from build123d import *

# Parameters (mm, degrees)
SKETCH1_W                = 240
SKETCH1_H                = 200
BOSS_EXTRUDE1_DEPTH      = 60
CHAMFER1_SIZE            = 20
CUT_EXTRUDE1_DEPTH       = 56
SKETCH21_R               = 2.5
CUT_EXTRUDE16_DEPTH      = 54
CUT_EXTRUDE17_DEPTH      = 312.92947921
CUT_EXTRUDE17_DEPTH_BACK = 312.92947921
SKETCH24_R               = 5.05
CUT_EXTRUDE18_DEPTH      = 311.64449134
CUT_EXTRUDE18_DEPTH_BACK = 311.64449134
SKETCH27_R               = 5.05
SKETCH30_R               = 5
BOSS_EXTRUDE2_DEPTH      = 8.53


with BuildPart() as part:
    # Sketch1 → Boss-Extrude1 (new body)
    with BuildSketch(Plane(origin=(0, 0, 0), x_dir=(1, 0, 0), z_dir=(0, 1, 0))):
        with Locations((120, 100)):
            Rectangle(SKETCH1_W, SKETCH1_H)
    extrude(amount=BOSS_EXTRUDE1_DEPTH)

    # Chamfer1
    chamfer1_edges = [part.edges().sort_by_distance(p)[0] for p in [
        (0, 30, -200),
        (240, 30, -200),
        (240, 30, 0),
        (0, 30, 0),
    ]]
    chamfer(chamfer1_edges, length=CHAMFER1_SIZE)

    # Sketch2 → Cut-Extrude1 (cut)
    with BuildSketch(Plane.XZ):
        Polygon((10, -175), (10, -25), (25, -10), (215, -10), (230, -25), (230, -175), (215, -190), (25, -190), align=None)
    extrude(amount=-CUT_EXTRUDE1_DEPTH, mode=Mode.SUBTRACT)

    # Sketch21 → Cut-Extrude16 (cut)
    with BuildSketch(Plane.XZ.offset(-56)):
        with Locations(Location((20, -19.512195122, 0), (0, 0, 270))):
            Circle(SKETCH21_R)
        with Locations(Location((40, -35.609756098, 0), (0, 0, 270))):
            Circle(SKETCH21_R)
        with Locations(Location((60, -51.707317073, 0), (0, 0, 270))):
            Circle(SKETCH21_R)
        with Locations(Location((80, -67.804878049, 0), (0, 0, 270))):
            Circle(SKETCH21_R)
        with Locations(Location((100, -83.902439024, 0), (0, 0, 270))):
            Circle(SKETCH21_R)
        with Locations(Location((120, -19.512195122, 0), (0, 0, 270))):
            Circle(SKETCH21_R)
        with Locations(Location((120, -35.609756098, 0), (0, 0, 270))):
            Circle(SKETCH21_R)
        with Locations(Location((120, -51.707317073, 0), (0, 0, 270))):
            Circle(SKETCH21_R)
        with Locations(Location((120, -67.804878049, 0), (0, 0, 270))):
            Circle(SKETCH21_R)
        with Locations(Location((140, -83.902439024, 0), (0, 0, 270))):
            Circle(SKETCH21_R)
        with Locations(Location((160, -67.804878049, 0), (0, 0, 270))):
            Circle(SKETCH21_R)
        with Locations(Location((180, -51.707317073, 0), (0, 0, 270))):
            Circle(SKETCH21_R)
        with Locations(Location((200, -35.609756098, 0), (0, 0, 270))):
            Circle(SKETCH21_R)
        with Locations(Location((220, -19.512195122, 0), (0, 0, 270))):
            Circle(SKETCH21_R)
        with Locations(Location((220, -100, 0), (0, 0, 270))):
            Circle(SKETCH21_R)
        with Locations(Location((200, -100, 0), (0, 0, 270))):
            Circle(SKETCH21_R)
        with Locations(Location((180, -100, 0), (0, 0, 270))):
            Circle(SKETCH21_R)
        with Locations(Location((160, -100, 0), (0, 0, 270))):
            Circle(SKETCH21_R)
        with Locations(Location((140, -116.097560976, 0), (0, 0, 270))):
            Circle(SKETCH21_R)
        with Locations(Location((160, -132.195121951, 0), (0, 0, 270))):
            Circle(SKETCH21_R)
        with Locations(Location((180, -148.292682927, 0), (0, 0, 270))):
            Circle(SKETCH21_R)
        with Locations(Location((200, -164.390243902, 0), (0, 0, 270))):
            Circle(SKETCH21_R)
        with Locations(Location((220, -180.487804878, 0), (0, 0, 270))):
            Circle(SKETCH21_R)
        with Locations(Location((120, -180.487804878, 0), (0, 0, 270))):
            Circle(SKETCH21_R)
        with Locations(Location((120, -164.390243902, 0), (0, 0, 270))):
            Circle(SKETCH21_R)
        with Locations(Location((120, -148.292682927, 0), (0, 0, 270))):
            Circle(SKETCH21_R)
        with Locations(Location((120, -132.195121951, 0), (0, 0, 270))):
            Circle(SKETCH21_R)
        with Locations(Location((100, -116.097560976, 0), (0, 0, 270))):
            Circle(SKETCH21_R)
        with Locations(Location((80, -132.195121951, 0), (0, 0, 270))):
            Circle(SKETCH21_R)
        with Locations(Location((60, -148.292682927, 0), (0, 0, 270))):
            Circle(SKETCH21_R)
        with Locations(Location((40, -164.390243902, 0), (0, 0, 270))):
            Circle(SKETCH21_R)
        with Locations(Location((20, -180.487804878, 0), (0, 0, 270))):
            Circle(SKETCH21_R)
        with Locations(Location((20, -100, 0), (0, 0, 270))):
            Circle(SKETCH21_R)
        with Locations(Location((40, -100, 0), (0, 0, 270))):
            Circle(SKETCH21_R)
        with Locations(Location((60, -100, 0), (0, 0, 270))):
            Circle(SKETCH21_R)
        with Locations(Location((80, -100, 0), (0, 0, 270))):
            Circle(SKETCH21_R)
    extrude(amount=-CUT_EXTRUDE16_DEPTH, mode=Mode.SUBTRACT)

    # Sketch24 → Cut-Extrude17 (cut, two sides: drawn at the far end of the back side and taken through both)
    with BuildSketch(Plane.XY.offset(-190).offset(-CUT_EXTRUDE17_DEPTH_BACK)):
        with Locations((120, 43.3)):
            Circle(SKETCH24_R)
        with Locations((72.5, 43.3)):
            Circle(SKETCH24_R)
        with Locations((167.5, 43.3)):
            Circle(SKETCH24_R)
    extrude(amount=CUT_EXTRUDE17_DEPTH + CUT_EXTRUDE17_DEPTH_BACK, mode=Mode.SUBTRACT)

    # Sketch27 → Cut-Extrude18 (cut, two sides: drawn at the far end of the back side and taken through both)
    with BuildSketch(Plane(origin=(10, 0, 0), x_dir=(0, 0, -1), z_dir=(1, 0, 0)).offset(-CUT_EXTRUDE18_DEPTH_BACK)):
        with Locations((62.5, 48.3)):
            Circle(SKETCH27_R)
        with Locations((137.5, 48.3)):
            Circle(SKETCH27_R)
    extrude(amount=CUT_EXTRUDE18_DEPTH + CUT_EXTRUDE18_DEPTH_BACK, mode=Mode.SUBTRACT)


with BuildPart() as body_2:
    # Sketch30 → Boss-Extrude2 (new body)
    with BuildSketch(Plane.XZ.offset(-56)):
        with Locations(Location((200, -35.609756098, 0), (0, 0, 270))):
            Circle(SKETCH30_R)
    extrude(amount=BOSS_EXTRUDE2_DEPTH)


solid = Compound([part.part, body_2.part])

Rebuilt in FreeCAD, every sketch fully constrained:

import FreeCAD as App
import Part
import Sketcher

V = App.Vector
Q = App.Units.Quantity


def edges_at(feature, points):
    """Names of the edges that pass closest to the given points."""
    edges = feature.Shape.Edges
    near = lambda p: min(range(len(edges)), key=lambda i: edges[i].distToShape(Part.Vertex(*p))[0])
    return sorted({f"Edge{near(p) + 1}" for p in points})

doc = App.newDocument("Part")
body = doc.addObject("PartDesign::Body", "Body")

sketch1 = doc.addObject("Sketcher::SketchObject", "Sketch")
body.addObject(sketch1)
sketch1.AttachmentSupport = (doc.XZ_Plane, [""])
sketch1.MapMode = "FlatFace"
sketch1.addGeometry([
    Part.LineSegment(V(0, -200, 0), V(0, 0, 0)),
    Part.LineSegment(V(0, 0, 0), V(240, 0, 0)),
    Part.LineSegment(V(240, 0, 0), V(240, -200, 0)),
    Part.LineSegment(V(240, -200, 0), V(0, -200, 0)),
], False)
sketch1.addConstraint([
    Sketcher.Constraint("Coincident", 0, 2, 1, 1),
    Sketcher.Constraint("Coincident", 1, 2, 2, 1),
    Sketcher.Constraint("Coincident", 2, 2, 3, 1),
    Sketcher.Constraint("Coincident", 3, 2, 0, 1),
    Sketcher.Constraint("Vertical", 0),
    Sketcher.Constraint("Horizontal", 1),
    Sketcher.Constraint("Vertical", 2),
    Sketcher.Constraint("Horizontal", 3),
    Sketcher.Constraint("Coincident", 0, 2, -1, 1),
    Sketcher.Constraint("DistanceX", 1, 1, 1, 2, Q("240 mm")),
    Sketcher.Constraint("DistanceY", 0, 1, 0, 2, Q("200 mm")),
])
pad1 = doc.addObject("PartDesign::Pad", "Pad")
body.addObject(pad1)
pad1.Profile = sketch1
pad1.Length = 60
pad1.Reversed = True
doc.recompute()

chamfer = doc.addObject("PartDesign::Chamfer", "Chamfer")
body.addObject(chamfer)
chamfer.Base = (pad1, edges_at(pad1, [
    (0, 30, -200),
    (240, 30, -200),
    (240, 30, 0),
    (0, 30, 0),
]))
chamfer.Size = 20

sketch2 = doc.addObject("Sketcher::SketchObject", "Sketch001")
body.addObject(sketch2)
sketch2.AttachmentSupport = (doc.XZ_Plane, [""])
sketch2.MapMode = "FlatFace"
sketch2.addGeometry([
    Part.LineSegment(V(10, -25, 0), V(10, -175, 0)),
    Part.LineSegment(V(10, -175, 0), V(25, -190, 0)),
    Part.LineSegment(V(25, -190, 0), V(215, -190, 0)),
    Part.LineSegment(V(215, -190, 0), V(230, -175, 0)),
    Part.LineSegment(V(230, -175, 0), V(230, -25, 0)),
    Part.LineSegment(V(230, -25, 0), V(215, -10, 0)),
    Part.LineSegment(V(215, -10, 0), V(25, -10, 0)),
    Part.LineSegment(V(25, -10, 0), V(10, -25, 0)),
], False)
sketch2.addConstraint([
    Sketcher.Constraint("Coincident", 0, 2, 1, 1),
    Sketcher.Constraint("Coincident", 1, 2, 2, 1),
    Sketcher.Constraint("Coincident", 2, 2, 3, 1),
    Sketcher.Constraint("Coincident", 3, 2, 4, 1),
    Sketcher.Constraint("Coincident", 4, 2, 5, 1),
    Sketcher.Constraint("Coincident", 5, 2, 6, 1),
    Sketcher.Constraint("Coincident", 6, 2, 7, 1),
    Sketcher.Constraint("Coincident", 7, 2, 0, 1),
    Sketcher.Constraint("Vertical", 0),
    Sketcher.Constraint("Horizontal", 2),
    Sketcher.Constraint("Vertical", 4),
    Sketcher.Constraint("Horizontal", 6),
    Sketcher.Constraint("Perpendicular", 1, 3),
    Sketcher.Constraint("Perpendicular", 3, 5),
    Sketcher.Constraint("Perpendicular", 5, 7),
    Sketcher.Constraint("Horizontal", 0, 2, 3, 2),
    Sketcher.Constraint("Horizontal", 4, 2, 7, 2),
    Sketcher.Constraint("Vertical", 2, 2, 5, 2),
    Sketcher.Constraint("Vertical", 1, 2, 6, 2),
    Sketcher.Constraint("DistanceX", 2, 1, 2, 2, Q("190 mm")),
    Sketcher.Constraint("DistanceY", 0, 2, 0, 1, Q("150 mm")),
    Sketcher.Constraint("DistanceX", -1, 1, 0, 2, Q("10 mm")),
    Sketcher.Constraint("DistanceY", 0, 2, -1, 1, Q("175 mm")),
    Sketcher.Constraint("DistanceX", -1, 1, 1, 2, Q("25 mm")),
])
pocket1 = doc.addObject("PartDesign::Pocket", "Pocket")
body.addObject(pocket1)
pocket1.Profile = sketch2
pocket1.Length = 56

sketch3 = doc.addObject("Sketcher::SketchObject", "Sketch002")
body.addObject(sketch3)
sketch3.AttachmentSupport = (doc.XZ_Plane, [""])
sketch3.MapMode = "FlatFace"
sketch3.AttachmentOffset = App.Placement(V(0, 0, -56), App.Rotation())
sketch3.addGeometry([
    Part.Circle(V(20, -19.5, 0), V(0, 0, 1), 2.5),
    Part.Circle(V(40, -35.6, 0), V(0, 0, 1), 2.5),
    Part.Circle(V(60, -51.7, 0), V(0, 0, 1), 2.5),
    Part.Circle(V(80, -67.8, 0), V(0, 0, 1), 2.5),
    Part.Circle(V(100, -83.9, 0), V(0, 0, 1), 2.5),
    Part.Circle(V(120, -19.5, 0), V(0, 0, 1), 2.5),
    Part.Circle(V(120, -35.6, 0), V(0, 0, 1), 2.5),
    Part.Circle(V(120, -51.7, 0), V(0, 0, 1), 2.5),
    Part.Circle(V(120, -67.8, 0), V(0, 0, 1), 2.5),
    Part.Circle(V(140, -83.9, 0), V(0, 0, 1), 2.5),
    Part.Circle(V(160, -67.8, 0), V(0, 0, 1), 2.5),
    Part.Circle(V(180, -51.7, 0), V(0, 0, 1), 2.5),
    Part.Circle(V(200, -35.6, 0), V(0, 0, 1), 2.5),
    Part.Circle(V(220, -19.5, 0), V(0, 0, 1), 2.5),
    Part.Circle(V(220, -100, 0), V(0, 0, 1), 2.5),
    Part.Circle(V(200, -100, 0), V(0, 0, 1), 2.5),
    Part.Circle(V(180, -100, 0), V(0, 0, 1), 2.5),
    Part.Circle(V(160, -100, 0), V(0, 0, 1), 2.5),
    Part.Circle(V(140, -116.1, 0), V(0, 0, 1), 2.5),
    Part.Circle(V(160, -132.2, 0), V(0, 0, 1), 2.5),
    Part.Circle(V(180, -148.3, 0), V(0, 0, 1), 2.5),
    Part.Circle(V(200, -164.4, 0), V(0, 0, 1), 2.5),
    Part.Circle(V(220, -180.5, 0), V(0, 0, 1), 2.5),
    Part.Circle(V(120, -180.5, 0), V(0, 0, 1), 2.5),
    Part.Circle(V(120, -164.4, 0), V(0, 0, 1), 2.5),
    Part.Circle(V(120, -148.3, 0), V(0, 0, 1), 2.5),
    Part.Circle(V(120, -132.2, 0), V(0, 0, 1), 2.5),
    Part.Circle(V(100, -116.1, 0), V(0, 0, 1), 2.5),
    Part.Circle(V(80, -132.2, 0), V(0, 0, 1), 2.5),
    Part.Circle(V(60, -148.3, 0), V(0, 0, 1), 2.5),
    Part.Circle(V(40, -164.4, 0), V(0, 0, 1), 2.5),
    Part.Circle(V(20, -180.5, 0), V(0, 0, 1), 2.5),
    Part.Circle(V(20, -100, 0), V(0, 0, 1), 2.5),
    Part.Circle(V(40, -100, 0), V(0, 0, 1), 2.5),
    Part.Circle(V(60, -100, 0), V(0, 0, 1), 2.5),
    Part.Circle(V(80, -100, 0), V(0, 0, 1), 2.5),
], False)
sketch3.addConstraint([
    Sketcher.Constraint("Equal", 0, 1),
    Sketcher.Constraint("Equal", 1, 2),
    Sketcher.Constraint("Equal", 2, 3),
    Sketcher.Constraint("Equal", 3, 4),
    Sketcher.Constraint("Equal", 4, 5),
    Sketcher.Constraint("Equal", 5, 6),
    Sketcher.Constraint("Equal", 6, 7),
    Sketcher.Constraint("Equal", 7, 8),
    Sketcher.Constraint("Equal", 8, 9),
    Sketcher.Constraint("Equal", 9, 10),
    Sketcher.Constraint("Equal", 10, 11),
    Sketcher.Constraint("Equal", 11, 12),
    Sketcher.Constraint("Equal", 12, 13),
    Sketcher.Constraint("Equal", 13, 14),
    Sketcher.Constraint("Equal", 14, 15),
    Sketcher.Constraint("Equal", 15, 16),
    Sketcher.Constraint("Equal", 16, 17),
    Sketcher.Constraint("Equal", 17, 18),
    Sketcher.Constraint("Equal", 18, 19),
    Sketcher.Constraint("Equal", 19, 20),
    Sketcher.Constraint("Equal", 20, 21),
    Sketcher.Constraint("Equal", 21, 22),
    Sketcher.Constraint("Equal", 22, 23),
    Sketcher.Constraint("Equal", 23, 24),
    Sketcher.Constraint("Equal", 24, 25),
    Sketcher.Constraint("Equal", 25, 26),
    Sketcher.Constraint("Equal", 26, 27),
    Sketcher.Constraint("Equal", 27, 28),
    Sketcher.Constraint("Equal", 28, 29),
    Sketcher.Constraint("Equal", 29, 30),
    Sketcher.Constraint("Equal", 30, 31),
    Sketcher.Constraint("Equal", 31, 32),
    Sketcher.Constraint("Equal", 32, 33),
    Sketcher.Constraint("Equal", 33, 34),
    Sketcher.Constraint("Equal", 34, 35),
    Sketcher.Constraint("Horizontal", 0, 3, 5, 3),
    Sketcher.Constraint("Horizontal", 1, 3, 6, 3),
    Sketcher.Constraint("Horizontal", 2, 3, 7, 3),
    Sketcher.Constraint("Horizontal", 3, 3, 8, 3),
    Sketcher.Constraint("Horizontal", 4, 3, 9, 3),
    Sketcher.Constraint("Horizontal", 8, 3, 10, 3),
    Sketcher.Constraint("Horizontal", 7, 3, 11, 3),
    Sketcher.Constraint("Horizontal", 6, 3, 12, 3),
    Sketcher.Constraint("Horizontal", 5, 3, 13, 3),
    Sketcher.Constraint("Horizontal", 14, 3, 15, 3),
    Sketcher.Constraint("Horizontal", 15, 3, 16, 3),
    Sketcher.Constraint("Horizontal", 16, 3, 17, 3),
    Sketcher.Constraint("Horizontal", 22, 3, 23, 3),
    Sketcher.Constraint("Horizontal", 21, 3, 24, 3),
    Sketcher.Constraint("Horizontal", 20, 3, 25, 3),
    Sketcher.Constraint("Horizontal", 19, 3, 26, 3),
    Sketcher.Constraint("Horizontal", 18, 3, 27, 3),
    Sketcher.Constraint("Horizontal", 26, 3, 28, 3),
    Sketcher.Constraint("Horizontal", 25, 3, 29, 3),
    Sketcher.Constraint("Horizontal", 24, 3, 30, 3),
    Sketcher.Constraint("Horizontal", 23, 3, 31, 3),
    Sketcher.Constraint("Horizontal", 17, 3, 32, 3),
    Sketcher.Constraint("Horizontal", 32, 3, 33, 3),
    Sketcher.Constraint("Horizontal", 33, 3, 34, 3),
    Sketcher.Constraint("Horizontal", 34, 3, 35, 3),
    Sketcher.Constraint("Vertical", 5, 3, 6, 3),
    Sketcher.Constraint("Vertical", 6, 3, 7, 3),
    Sketcher.Constraint("Vertical", 7, 3, 8, 3),
    Sketcher.Constraint("Vertical", 13, 3, 14, 3),
    Sketcher.Constraint("Vertical", 12, 3, 15, 3),
    Sketcher.Constraint("Vertical", 11, 3, 16, 3),
    Sketcher.Constraint("Vertical", 10, 3, 17, 3),
    Sketcher.Constraint("Vertical", 9, 3, 18, 3),
    Sketcher.Constraint("Vertical", 17, 3, 19, 3),
    Sketcher.Constraint("Vertical", 16, 3, 20, 3),
    Sketcher.Constraint("Vertical", 15, 3, 21, 3),
    Sketcher.Constraint("Vertical", 14, 3, 22, 3),
    Sketcher.Constraint("Vertical", 8, 3, 23, 3),
    Sketcher.Constraint("Vertical", 23, 3, 24, 3),
    Sketcher.Constraint("Vertical", 24, 3, 25, 3),
    Sketcher.Constraint("Vertical", 25, 3, 26, 3),
    Sketcher.Constraint("Vertical", 4, 3, 27, 3),
    Sketcher.Constraint("Vertical", 3, 3, 28, 3),
    Sketcher.Constraint("Vertical", 2, 3, 29, 3),
    Sketcher.Constraint("Vertical", 1, 3, 30, 3),
    Sketcher.Constraint("Vertical", 0, 3, 31, 3),
    Sketcher.Constraint("Vertical", 31, 3, 32, 3),
    Sketcher.Constraint("Vertical", 30, 3, 33, 3),
    Sketcher.Constraint("Vertical", 29, 3, 34, 3),
    Sketcher.Constraint("Vertical", 28, 3, 35, 3),
    Sketcher.Constraint("Diameter", 0, Q("5 mm")),
    Sketcher.Constraint("DistanceX", -1, 1, 0, 3, Q("20 mm")),
    Sketcher.Constraint("DistanceX", -1, 1, 1, 3, Q("40 mm")),
    Sketcher.Constraint("DistanceX", -1, 1, 2, 3, Q("60 mm")),
    Sketcher.Constraint("DistanceX", -1, 1, 3, 3, Q("80 mm")),
    Sketcher.Constraint("DistanceX", -1, 1, 4, 3, Q("100 mm")),
    Sketcher.Constraint("DistanceX", -1, 1, 5, 3, Q("120 mm")),
    Sketcher.Constraint("DistanceX", -1, 1, 9, 3, Q("140 mm")),
    Sketcher.Constraint("DistanceX", -1, 1, 10, 3, Q("160 mm")),
    Sketcher.Constraint("DistanceX", -1, 1, 11, 3, Q("180 mm")),
    Sketcher.Constraint("DistanceX", -1, 1, 12, 3, Q("200 mm")),
    Sketcher.Constraint("DistanceX", -1, 1, 13, 3, Q("220 mm")),
    Sketcher.Constraint("DistanceY", 14, 3, -1, 1, Q("100 mm")),
    Sketcher.Constraint("DistanceY", 3, 3, -1, 1, Q("67.804878 mm")),
    Sketcher.Constraint("DistanceY", 4, 3, -1, 1, Q("83.902439 mm")),
    Sketcher.Constraint("DistanceY", 18, 3, -1, 1, Q("116.097561 mm")),
    Sketcher.Constraint("DistanceY", 19, 3, -1, 1, Q("132.195122 mm")),
    Sketcher.Constraint("DistanceY", 1, 3, 0, 3, Q("16.097561 mm")),
    Sketcher.Constraint("DistanceY", 2, 3, 1, 3, Q("16.097561 mm")),
    Sketcher.Constraint("DistanceY", 3, 3, 2, 3, Q("16.097561 mm")),
    Sketcher.Constraint("DistanceY", 20, 3, 19, 3, Q("16.097561 mm")),
    Sketcher.Constraint("DistanceY", 21, 3, 20, 3, Q("16.097561 mm")),
    Sketcher.Constraint("DistanceY", 22, 3, 21, 3, Q("16.097561 mm")),
])
pocket2 = doc.addObject("PartDesign::Pocket", "Pocket001")
body.addObject(pocket2)
pocket2.Profile = sketch3
pocket2.Length = 54

sketch4 = doc.addObject("Sketcher::SketchObject", "Sketch003")
body.addObject(sketch4)
sketch4.AttachmentSupport = (doc.XY_Plane, [""])
sketch4.MapMode = "FlatFace"
sketch4.AttachmentOffset = App.Placement(V(0, 0, -190), App.Rotation())
sketch4.addGeometry([
    Part.Circle(V(120, 43, 0), V(0, 0, 1), 5),
    Part.Circle(V(72, 43, 0), V(0, 0, 1), 5),
    Part.Circle(V(168, 43, 0), V(0, 0, 1), 5),
], False)
sketch4.addConstraint([
    Sketcher.Constraint("Equal", 0, 1),
    Sketcher.Constraint("Equal", 1, 2),
    Sketcher.Constraint("Horizontal", 0, 3, 1, 3),
    Sketcher.Constraint("Horizontal", 1, 3, 2, 3),
    Sketcher.Constraint("Diameter", 0, Q("10.1 mm")),
    Sketcher.Constraint("DistanceX", -1, 1, 0, 3, Q("120 mm")),
    Sketcher.Constraint("DistanceX", 1, 3, 2, 3, Q("95 mm")),
    Sketcher.Constraint("DistanceY", -1, 1, 0, 3, Q("43.3 mm")),
    Sketcher.Constraint("DistanceX", -1, 1, 1, 3, Q("72.5 mm")),
])
pocket3 = doc.addObject("PartDesign::Pocket", "Pocket002")
body.addObject(pocket3)
pocket3.Profile = sketch4
pocket3.Type = "ThroughAll"
pocket3.Midplane = True

sketch5 = doc.addObject("Sketcher::SketchObject", "Sketch004")
body.addObject(sketch5)
sketch5.AttachmentSupport = (doc.YZ_Plane, [""])
sketch5.MapMode = "FlatFace"
sketch5.AttachmentOffset = App.Placement(V(0, 0, 10), App.Rotation())
sketch5.addGeometry([
    Part.Circle(V(48, -62, 0), V(0, 0, 1), 5),
    Part.Circle(V(48, -138, 0), V(0, 0, 1), 5),
], False)
sketch5.addConstraint([
    Sketcher.Constraint("Equal", 0, 1),
    Sketcher.Constraint("Vertical", 0, 3, 1, 3),
    Sketcher.Constraint("Diameter", 0, Q("10.1 mm")),
    Sketcher.Constraint("DistanceY", 1, 3, 0, 3, Q("75 mm")),
    Sketcher.Constraint("DistanceX", -1, 1, 0, 3, Q("48.3 mm")),
    Sketcher.Constraint("DistanceY", 0, 3, -1, 1, Q("62.5 mm")),
])
pocket4 = doc.addObject("PartDesign::Pocket", "Pocket003")
body.addObject(pocket4)
pocket4.Profile = sketch5
pocket4.Type = "ThroughAll"
pocket4.Midplane = True
body2 = doc.addObject("PartDesign::Body", "Body001")

sketch6 = doc.addObject("Sketcher::SketchObject", "Sketch005")
body2.addObject(sketch6)
sketch6.AttachmentSupport = (doc.getObject("XZ_Plane001"), [""])
sketch6.MapMode = "FlatFace"
sketch6.AttachmentOffset = App.Placement(V(0, 0, -56), App.Rotation())
sketch6.addGeometry(Part.Circle(V(200, -36, 0), V(0, 0, 1), 5), False)
sketch6.addConstraint([
    Sketcher.Constraint("Diameter", 0, Q("10 mm")),
    Sketcher.Constraint("DistanceX", -1, 1, 0, 3, Q("200 mm")),
    Sketcher.Constraint("DistanceY", 0, 3, -1, 1, Q("35.609756 mm")),
])
pad2 = doc.addObject("PartDesign::Pad", "Pad001")
body2.addObject(pad2)
pad2.Profile = sketch6
pad2.Length = 8.53

doc.recompute()
